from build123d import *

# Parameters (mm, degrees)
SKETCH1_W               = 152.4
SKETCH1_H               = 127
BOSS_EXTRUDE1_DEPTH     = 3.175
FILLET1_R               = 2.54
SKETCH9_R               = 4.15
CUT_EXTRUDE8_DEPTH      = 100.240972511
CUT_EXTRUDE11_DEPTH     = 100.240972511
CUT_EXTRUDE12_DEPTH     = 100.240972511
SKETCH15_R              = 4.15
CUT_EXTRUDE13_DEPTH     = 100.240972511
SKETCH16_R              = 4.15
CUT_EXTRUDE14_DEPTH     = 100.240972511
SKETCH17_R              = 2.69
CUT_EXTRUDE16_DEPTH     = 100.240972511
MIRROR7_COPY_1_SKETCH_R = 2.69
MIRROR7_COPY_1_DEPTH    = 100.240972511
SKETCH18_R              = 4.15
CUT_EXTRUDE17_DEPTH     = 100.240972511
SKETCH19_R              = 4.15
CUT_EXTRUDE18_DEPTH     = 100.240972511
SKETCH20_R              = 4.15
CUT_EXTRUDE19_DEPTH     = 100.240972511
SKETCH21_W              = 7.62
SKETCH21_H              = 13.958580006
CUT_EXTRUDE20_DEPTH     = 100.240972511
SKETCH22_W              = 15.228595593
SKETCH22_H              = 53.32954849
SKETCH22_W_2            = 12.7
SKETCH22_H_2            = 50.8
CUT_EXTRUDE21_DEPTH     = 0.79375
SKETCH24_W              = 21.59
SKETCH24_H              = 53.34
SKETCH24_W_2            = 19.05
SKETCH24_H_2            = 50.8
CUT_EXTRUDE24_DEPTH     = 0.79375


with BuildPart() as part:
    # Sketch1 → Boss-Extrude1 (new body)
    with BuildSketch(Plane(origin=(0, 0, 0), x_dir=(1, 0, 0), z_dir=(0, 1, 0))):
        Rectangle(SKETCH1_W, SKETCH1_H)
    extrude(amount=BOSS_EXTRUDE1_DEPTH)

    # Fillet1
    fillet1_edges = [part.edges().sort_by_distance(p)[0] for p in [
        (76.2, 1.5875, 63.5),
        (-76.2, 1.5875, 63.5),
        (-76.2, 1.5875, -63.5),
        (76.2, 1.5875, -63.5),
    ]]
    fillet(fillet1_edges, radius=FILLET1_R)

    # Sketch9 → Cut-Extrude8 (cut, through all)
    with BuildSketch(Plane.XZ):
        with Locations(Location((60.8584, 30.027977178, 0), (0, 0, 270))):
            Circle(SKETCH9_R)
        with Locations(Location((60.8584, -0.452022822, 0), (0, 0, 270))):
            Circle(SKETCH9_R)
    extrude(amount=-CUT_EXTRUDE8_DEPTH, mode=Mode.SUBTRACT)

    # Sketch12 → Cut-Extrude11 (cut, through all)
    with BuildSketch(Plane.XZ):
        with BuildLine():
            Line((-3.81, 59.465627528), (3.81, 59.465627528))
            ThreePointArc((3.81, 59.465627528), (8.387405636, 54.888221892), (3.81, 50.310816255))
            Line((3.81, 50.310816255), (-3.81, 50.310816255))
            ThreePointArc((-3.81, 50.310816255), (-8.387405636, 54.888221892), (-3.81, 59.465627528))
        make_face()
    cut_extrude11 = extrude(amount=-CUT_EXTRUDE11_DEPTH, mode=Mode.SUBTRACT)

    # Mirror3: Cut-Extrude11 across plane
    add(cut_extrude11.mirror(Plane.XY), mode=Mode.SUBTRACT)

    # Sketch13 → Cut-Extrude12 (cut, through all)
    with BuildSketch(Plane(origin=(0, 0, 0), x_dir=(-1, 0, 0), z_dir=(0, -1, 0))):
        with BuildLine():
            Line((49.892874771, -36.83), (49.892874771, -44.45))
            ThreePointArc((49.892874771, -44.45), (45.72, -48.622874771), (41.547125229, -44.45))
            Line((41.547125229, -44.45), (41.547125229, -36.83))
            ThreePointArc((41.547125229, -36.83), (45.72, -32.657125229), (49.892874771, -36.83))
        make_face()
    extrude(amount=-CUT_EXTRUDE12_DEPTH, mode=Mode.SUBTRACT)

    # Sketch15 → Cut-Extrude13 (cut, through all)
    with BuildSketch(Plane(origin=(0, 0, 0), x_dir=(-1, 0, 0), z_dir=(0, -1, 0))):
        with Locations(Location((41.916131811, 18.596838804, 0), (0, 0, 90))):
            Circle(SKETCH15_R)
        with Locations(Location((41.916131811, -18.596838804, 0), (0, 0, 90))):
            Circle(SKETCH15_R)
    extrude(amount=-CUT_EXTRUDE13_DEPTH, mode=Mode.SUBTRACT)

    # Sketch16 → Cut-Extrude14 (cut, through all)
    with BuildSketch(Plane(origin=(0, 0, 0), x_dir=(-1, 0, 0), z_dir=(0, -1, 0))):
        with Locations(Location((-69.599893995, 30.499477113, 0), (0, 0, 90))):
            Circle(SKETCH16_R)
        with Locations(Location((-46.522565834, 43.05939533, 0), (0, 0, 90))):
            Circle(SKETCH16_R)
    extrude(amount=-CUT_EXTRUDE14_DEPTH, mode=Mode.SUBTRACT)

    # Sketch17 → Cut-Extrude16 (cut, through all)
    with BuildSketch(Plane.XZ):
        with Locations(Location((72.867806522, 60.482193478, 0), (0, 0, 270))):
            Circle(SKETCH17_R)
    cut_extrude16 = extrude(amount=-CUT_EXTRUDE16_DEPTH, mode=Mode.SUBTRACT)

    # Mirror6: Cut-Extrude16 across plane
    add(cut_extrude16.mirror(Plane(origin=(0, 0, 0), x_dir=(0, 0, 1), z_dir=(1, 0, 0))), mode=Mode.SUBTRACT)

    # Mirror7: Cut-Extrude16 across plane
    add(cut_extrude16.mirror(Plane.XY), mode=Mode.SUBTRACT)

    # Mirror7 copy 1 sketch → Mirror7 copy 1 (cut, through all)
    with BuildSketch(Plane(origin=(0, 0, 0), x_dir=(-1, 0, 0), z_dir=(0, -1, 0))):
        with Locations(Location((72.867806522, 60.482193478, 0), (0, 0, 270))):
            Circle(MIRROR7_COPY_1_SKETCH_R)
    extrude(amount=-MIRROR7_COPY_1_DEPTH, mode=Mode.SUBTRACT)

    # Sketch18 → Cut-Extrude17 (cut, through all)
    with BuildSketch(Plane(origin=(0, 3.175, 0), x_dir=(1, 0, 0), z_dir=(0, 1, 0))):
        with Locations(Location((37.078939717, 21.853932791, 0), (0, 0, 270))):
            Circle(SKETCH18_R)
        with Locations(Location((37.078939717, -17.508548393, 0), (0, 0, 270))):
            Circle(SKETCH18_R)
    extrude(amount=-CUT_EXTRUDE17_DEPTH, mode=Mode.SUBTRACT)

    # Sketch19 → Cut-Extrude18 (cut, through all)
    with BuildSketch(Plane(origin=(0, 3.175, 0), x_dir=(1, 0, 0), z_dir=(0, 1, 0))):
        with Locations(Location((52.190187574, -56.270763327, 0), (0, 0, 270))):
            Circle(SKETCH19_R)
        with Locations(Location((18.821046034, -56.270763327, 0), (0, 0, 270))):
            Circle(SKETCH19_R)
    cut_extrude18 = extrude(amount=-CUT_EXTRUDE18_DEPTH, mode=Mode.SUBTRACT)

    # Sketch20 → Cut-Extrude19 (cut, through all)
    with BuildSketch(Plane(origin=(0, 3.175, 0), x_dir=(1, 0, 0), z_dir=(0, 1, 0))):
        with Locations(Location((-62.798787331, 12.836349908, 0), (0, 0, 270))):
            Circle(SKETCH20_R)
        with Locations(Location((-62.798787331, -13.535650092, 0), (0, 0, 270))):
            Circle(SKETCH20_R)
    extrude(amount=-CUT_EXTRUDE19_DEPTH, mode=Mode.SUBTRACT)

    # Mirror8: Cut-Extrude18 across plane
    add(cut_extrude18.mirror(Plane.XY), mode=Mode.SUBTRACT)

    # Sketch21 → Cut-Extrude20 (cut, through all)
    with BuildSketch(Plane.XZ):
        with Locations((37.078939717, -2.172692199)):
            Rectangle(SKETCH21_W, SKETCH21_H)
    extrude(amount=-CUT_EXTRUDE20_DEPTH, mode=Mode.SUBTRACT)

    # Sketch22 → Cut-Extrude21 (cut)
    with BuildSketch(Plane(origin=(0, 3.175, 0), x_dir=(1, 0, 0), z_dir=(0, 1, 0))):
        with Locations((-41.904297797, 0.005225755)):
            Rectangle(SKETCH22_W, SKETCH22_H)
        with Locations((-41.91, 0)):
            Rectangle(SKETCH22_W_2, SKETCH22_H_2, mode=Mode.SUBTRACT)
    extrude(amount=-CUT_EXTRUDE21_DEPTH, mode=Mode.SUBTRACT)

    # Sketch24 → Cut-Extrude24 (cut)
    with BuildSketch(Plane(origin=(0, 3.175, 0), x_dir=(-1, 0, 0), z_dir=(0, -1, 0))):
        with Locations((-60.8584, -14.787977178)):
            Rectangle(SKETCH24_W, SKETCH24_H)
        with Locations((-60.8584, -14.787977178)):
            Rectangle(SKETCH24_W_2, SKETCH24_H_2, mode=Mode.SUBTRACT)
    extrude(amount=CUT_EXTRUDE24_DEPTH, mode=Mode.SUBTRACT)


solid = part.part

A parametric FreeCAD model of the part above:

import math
import FreeCAD as App
import Part
import Sketcher
from FreeCAD import Vector
Q = App.Units.Quantity


def edges_at(feature, points):
    """Names of the edges that pass closest to the given points."""
    edges = feature.Shape.Edges
    near = lambda p: min(range(len(edges)), key=lambda i: edges[i].distToShape(Part.Vertex(*p))[0])
    return sorted({f"Edge{near(p) + 1}" for p in points})

doc = App.newDocument("Part")
body = doc.addObject("PartDesign::Body", "Body")

# Sketch on XZ plane
sketch1 = doc.addObject("Sketcher::SketchObject", "Sketch")
body.addObject(sketch1)
sketch1.AttachmentSupport = (doc.XZ_Plane, [""])
sketch1.MapMode = "FlatFace"
sketch1.addGeometry([
    Part.LineSegment(Vector(-76, -64, 0), Vector(-76, 64, 0)),
    Part.LineSegment(Vector(-76, 64, 0), Vector(76, 64, 0)),
    Part.LineSegment(Vector(76, 64, 0), Vector(76, -64, 0)),
    Part.LineSegment(Vector(76, -64, 0), Vector(-76, -64, 0)),
], False)
sketch1.addConstraint([
    Sketcher.Constraint("Coincident", 0, 2, 1, 1),
    Sketcher.Constraint("Coincident", 1, 2, 2, 1),
    Sketcher.Constraint("Coincident", 2, 2, 3, 1),
    Sketcher.Constraint("Coincident", 3, 2, 0, 1),
    Sketcher.Constraint("Vertical", 0),
    Sketcher.Constraint("Horizontal", 1),
    Sketcher.Constraint("Vertical", 2),
    Sketcher.Constraint("Horizontal", 3),
    Sketcher.Constraint("Symmetric", 0, 2, 2, 2, -1, 1),
    Sketcher.Constraint("DistanceX", 1, 1, 1, 2, Q("6 in")),
    Sketcher.Constraint("DistanceY", 0, 1, 0, 2, Q("5 in")),
])
pad1 = doc.addObject("PartDesign::Pad", "Pad")
body.addObject(pad1)
pad1.Profile = sketch1
pad1.Length = Q("0.125 in")
pad1.Reversed = True
doc.recompute()

fillet = doc.addObject("PartDesign::Fillet", "Fillet")
body.addObject(fillet)
fillet.Base = (pad1, edges_at(pad1, [
    (76.2, 1.587, 63.5),
    (-76.2, 1.587, 63.5),
    (-76.2, 1.587, -63.5),
    (76.2, 1.587, -63.5),
]))
fillet.Radius = Q("0.1 in")

# Sketch on XZ plane
sketch2 = doc.addObject("Sketcher::SketchObject", "Sketch001")
body.addObject(sketch2)
sketch2.AttachmentSupport = (doc.XZ_Plane, [""])
sketch2.MapMode = "FlatFace"
sketch2.addGeometry([
    Part.Circle(Vector(60.9, 30, 0), Vector(0, 0, 1), 4.2),
    Part.Circle(Vector(60.9, -0.5, 0), Vector(0, 0, 1), 4.2),
], False)
sketch2.addConstraint([
    Sketcher.Constraint("Equal", 0, 1),
    Sketcher.Constraint("Vertical", 0, 3, 1, 3),
    Sketcher.Constraint("DistanceY", 1, 3, 0, 3, Q("1.2 in")),
    Sketcher.Constraint("Diameter", 0, 8.3),
    Sketcher.Constraint("DistanceX", -1, 1, 0, 3, Q("2.396 in")),
    Sketcher.Constraint("DistanceY", -1, 1, 0, 3, 30.027977),
])
pocket1 = doc.addObject("PartDesign::Pocket", "Pocket")
body.addObject(pocket1)
pocket1.Profile = sketch2
pocket1.Type = "ThroughAll"

# Sketch on XZ plane
sketch3 = doc.addObject("Sketcher::SketchObject", "Sketch002")
body.addObject(sketch3)
sketch3.AttachmentSupport = (doc.XZ_Plane, [""])
sketch3.MapMode = "FlatFace"
sketch3.addGeometry([
    Part.LineSegment(Vector(3.8, 59.5, 0), Vector(-3.8, 59.5, 0)),
    Part.ArcOfCircle(Part.Circle(Vector(-3.8, 54.9, 0), Vector(0, 0, 1), 4.6), math.radians(90), math.radians(270)),
    Part.LineSegment(Vector(-3.8, 50.3, 0), Vector(3.8, 50.3, 0)),
    Part.ArcOfCircle(Part.Circle(Vector(3.8, 54.9, 0), Vector(0, 0, 1), 4.6), math.radians(-90), math.radians(90)),
], False)
sketch3.addConstraint([
    Sketcher.Constraint("Tangent", 0, 2, 1, 1),
    Sketcher.Constraint("Tangent", 1, 2, 2, 1),
    Sketcher.Constraint("Tangent", 2, 2, 3, 1),
    Sketcher.Constraint("Tangent", 3, 2, 0, 1),
    Sketcher.Constraint("Horizontal", 0),
    Sketcher.Constraint("Horizontal", 2),
    Sketcher.Constraint("DistanceX", 0, 2, 0, 1, Q("0.3 in")),
    Sketcher.Constraint("DistanceX", 1, 3, -1, 1, Q("0.15 in")),
    Sketcher.Constraint("Radius", 1, 4.577406),
    Sketcher.Constraint("DistanceY", -1, 1, 1, 3, 54.888222),
])
pocket2 = doc.addObject("PartDesign::Pocket", "Pocket001")
body.addObject(pocket2)
pocket2.Profile = sketch3
pocket2.Type = "ThroughAll"
doc.recompute()

mirrored = doc.addObject("PartDesign::Mirrored", "Mirrored")
body.addObject(mirrored)
mirrored.Originals = [pocket2]
mirrored.MirrorPlane = (doc.XY_Plane, [""])
body.Tip = mirrored

# Sketch on XZ plane
sketch4 = doc.addObject("Sketcher::SketchObject", "Sketch003")
body.addObject(sketch4)
sketch4.AttachmentSupport = (doc.XZ_Plane, [""])
sketch4.MapMode = "FlatFace"
sketch4.addGeometry([
    Part.LineSegment(Vector(-49.9, 44.5, 0), Vector(-49.9, 36.8, 0)),
    Part.ArcOfCircle(Part.Circle(Vector(-45.7, 36.8, 0), Vector(0, 0, 1), 4.2), math.radians(180), math.radians(360)),
    Part.LineSegment(Vector(-41.5, 36.8, 0), Vector(-41.5, 44.5, 0)),
    Part.ArcOfCircle(Part.Circle(Vector(-45.7, 44.5, 0), Vector(0, 0, 1), 4.2), math.radians(0), math.radians(180)),
], False)
sketch4.addConstraint([
    Sketcher.Constraint("Tangent", 0, 2, 1, 1),
    Sketcher.Constraint("Tangent", 1, 2, 2, 1),
    Sketcher.Constraint("Tangent", 2, 2, 3, 1),
    Sketcher.Constraint("Tangent", 3, 2, 0, 1),
    Sketcher.Constraint("Vertical", 0),
    Sketcher.Constraint("Vertical", 2),
    Sketcher.Constraint("DistanceY", 0, 2, 0, 1, Q("0.3 in")),
    Sketcher.Constraint("DistanceX", 1, 3, -1, 1, Q("1.8 in")),
    Sketcher.Constraint("DistanceY", -1, 1, 1, 3, Q("1.45 in")),
    Sketcher.Constraint("Radius", 1, 4.172875),
])
pocket3 = doc.addObject("PartDesign::Pocket", "Pocket002")
body.addObject(pocket3)
pocket3.Profile = sketch4
pocket3.Type = "ThroughAll"

# Sketch on XZ plane
sketch5 = doc.addObject("Sketcher::SketchObject", "Sketch004")
body.addObject(sketch5)
sketch5.AttachmentSupport = (doc.XZ_Plane, [""])
sketch5.MapMode = "FlatFace"
sketch5.addGeometry([
    Part.Circle(Vector(-41.9, -18.6, 0), Vector(0, 0, 1), 4.2),
    Part.Circle(Vector(-41.9, 18.6, 0), Vector(0, 0, 1), 4.2),
], False)
sketch5.addConstraint([
    Sketcher.Constraint("Equal", 0, 1),
    Sketcher.Constraint("Symmetric", 0, 3, 1, 3, -1),
    Sketcher.Constraint("Diameter", 0, 8.3),
    Sketcher.Constraint("DistanceX", 0, 3, -1, 1, 41.916132),
    Sketcher.Constraint("DistanceY", 0, 3, -1, 1, 18.596839),
])
pocket4 = doc.addObject("PartDesign::Pocket", "Pocket003")
body.addObject(pocket4)
pocket4.Profile = sketch5
pocket4.Type = "ThroughAll"

# Sketch on XZ plane
sketch6 = doc.addObject("Sketcher::SketchObject", "Sketch005")
body.addObject(sketch6)
sketch6.AttachmentSupport = (doc.XZ_Plane, [""])
sketch6.MapMode = "FlatFace"
sketch6.addGeometry([
    Part.Circle(Vector(69.6, -30.5, 0), Vector(0, 0, 1), 4.2),
    Part.Circle(Vector(46.5, -43.1, 0), Vector(0, 0, 1), 4.2),
], False)
sketch6.addConstraint([
    Sketcher.Constraint("Equal", 0, 1),
    Sketcher.Constraint("Diameter", 0, 8.3),
    Sketcher.Constraint("DistanceX", 1, 3, 0, 3, 23.077328),
    Sketcher.Constraint("DistanceY", 1, 3, 0, 3, 12.559918),
    Sketcher.Constraint("DistanceX", -1, 1, 0, 3, 69.599894),
    Sketcher.Constraint("DistanceY", 0, 3, -1, 1, 30.499477),
])
pocket5 = doc.addObject("PartDesign::Pocket", "Pocket004")
body.addObject(pocket5)
pocket5.Profile = sketch6
pocket5.Type = "ThroughAll"

# Sketch on XZ plane
sketch7 = doc.addObject("Sketcher::SketchObject", "Sketch006")
body.addObject(sketch7)
sketch7.AttachmentSupport = (doc.XZ_Plane, [""])
sketch7.MapMode = "FlatFace"
sketch7.addGeometry(Part.Circle(Vector(72.9, 60.5, 0), Vector(0, 0, 1), 2.7), False)
sketch7.addConstraint([
    Sketcher.Constraint("Diameter", 0, 5.38),
    Sketcher.Constraint("DistanceX", -1, 1, 0, 3, 72.867807),
    Sketcher.Constraint("DistanceY", -1, 1, 0, 3, 60.482193),
])
pocket6 = doc.addObject("PartDesign::Pocket", "Pocket005")
body.addObject(pocket6)
pocket6.Profile = sketch7
pocket6.Type = "ThroughAll"
doc.recompute()

mirrored2 = doc.addObject("PartDesign::Mirrored", "Mirrored001")
body.addObject(mirrored2)
mirrored2.Originals = [pocket6]
mirrored2.MirrorPlane = (doc.YZ_Plane, [""])
body.Tip = mirrored2
doc.recompute()

mirrored3 = doc.addObject("PartDesign::Mirrored", "Mirrored002")
body.addObject(mirrored3)
mirrored3.Originals = [pocket6]
mirrored3.MirrorPlane = (doc.XY_Plane, [""])
body.Tip = mirrored3

# Sketch on XZ plane
sketch8 = doc.addObject("Sketcher::SketchObject", "Sketch007")
body.addObject(sketch8)
sketch8.AttachmentSupport = (doc.XZ_Plane, [""])
sketch8.MapMode = "FlatFace"
sketch8.addGeometry(Part.Circle(Vector(-72.9, -60.5, 0), Vector(0, 0, 1), 2.7), False)
sketch8.addConstraint([
    Sketcher.Constraint("Diameter", 0, 5.38),
    Sketcher.Constraint("DistanceX", 0, 3, -1, 1, 72.867807),
    Sketcher.Constraint("DistanceY", 0, 3, -1, 1, 60.482193),
])
pocket7 = doc.addObject("PartDesign::Pocket", "Pocket006")
body.addObject(pocket7)
pocket7.Profile = sketch8
pocket7.Type = "ThroughAll"

# Sketch on XZ plane
sketch9 = doc.addObject("Sketcher::SketchObject", "Sketch008")
body.addObject(sketch9)
sketch9.AttachmentSupport = (doc.XZ_Plane, [""])
sketch9.MapMode = "FlatFace"
sketch9.AttachmentOffset = App.Placement(Vector(0, 0, -0.125 * 25.4), App.Rotation())
sketch9.addGeometry([
    Part.Circle(Vector(37.1, -21.9, 0), Vector(0, 0, 1), 4.2),
    Part.Circle(Vector(37.1, 17.5, 0), Vector(0, 0, 1), 4.2),
], False)
sketch9.addConstraint([
    Sketcher.Constraint("Equal", 0, 1),
    Sketcher.Constraint("Vertical", 0, 3, 1, 3),
    Sketcher.Constraint("Diameter", 0, 8.3),
    Sketcher.Constraint("DistanceX", -1, 1, 0, 3, 37.07894),
    Sketcher.Constraint("DistanceY", -1, 1, 1, 3, 17.508548),
    Sketcher.Constraint("DistanceY", 0, 3, 1, 3, 39.362481),
])
pocket8 = doc.addObject("PartDesign::Pocket", "Pocket007")
body.addObject(pocket8)
pocket8.Profile = sketch9
pocket8.Type = "ThroughAll"
pocket8.Reversed = True

# Sketch on XZ plane
sketch10 = doc.addObject("Sketcher::SketchObject", "Sketch009")
body.addObject(sketch10)
sketch10.AttachmentSupport = (doc.XZ_Plane, [""])
sketch10.MapMode = "FlatFace"
sketch10.AttachmentOffset = App.Placement(Vector(0, 0, -0.125 * 25.4), App.Rotation())
sketch10.addGeometry([
    Part.Circle(Vector(52.2, 56.3, 0), Vector(0, 0, 1), 4.2),
    Part.Circle(Vector(18.8, 56.3, 0), Vector(0, 0, 1), 4.2),
], False)
sketch10.addConstraint([
    Sketcher.Constraint("Equal", 0, 1),
    Sketcher.Constraint("Horizontal", 0, 3, 1, 3),
    Sketcher.Constraint("Diameter", 0, 8.3),
    Sketcher.Constraint("DistanceX", 1, 3, 0, 3, 33.369142),
    Sketcher.Constraint("DistanceX", -1, 1, 0, 3, 52.190188),
    Sketcher.Constraint("DistanceY", -1, 1, 0, 3, 56.270763),
])
pocket9 = doc.addObject("PartDesign::Pocket", "Pocket008")
body.addObject(pocket9)
pocket9.Profile = sketch10
pocket9.Type = "ThroughAll"
pocket9.Reversed = True

# Sketch on XZ plane
sketch11 = doc.addObject("Sketcher::SketchObject", "Sketch010")
body.addObject(sketch11)
sketch11.AttachmentSupport = (doc.XZ_Plane, [""])
sketch11.MapMode = "FlatFace"
sketch11.AttachmentOffset = App.Placement(Vector(0, 0, -0.125 * 25.4), App.Rotation())
sketch11.addGeometry([
    Part.Circle(Vector(-62.8, -12.8, 0), Vector(0, 0, 1), 4.2),
    Part.Circle(Vector(-62.8, 13.5, 0), Vector(0, 0, 1), 4.2),
], False)
sketch11.addConstraint([
    Sketcher.Constraint("Equal", 0, 1),
    Sketcher.Constraint("Vertical", 0, 3, 1, 3),
    Sketcher.Constraint("Diameter", 0, 8.3),
    Sketcher.Constraint("DistanceY", 0, 3, 1, 3, 26.372),
    Sketcher.Constraint("DistanceY", 0, 3, -1, 1, 12.83635),
    Sketcher.Constraint("DistanceX", 0, 3, -1, 1, 62.798787),
])
pocket10 = doc.addObject("PartDesign::Pocket", "Pocket009")
body.addObject(pocket10)
pocket10.Profile = sketch11
pocket10.Type = "ThroughAll"
pocket10.Reversed = True
doc.recompute()

mirrored4 = doc.addObject("PartDesign::Mirrored", "Mirrored003")
body.addObject(mirrored4)
mirrored4.Originals = [pocket9]
mirrored4.MirrorPlane = (doc.XY_Plane, [""])
body.Tip = mirrored4

# Sketch on XZ plane
sketch12 = doc.addObject("Sketcher::SketchObject", "Sketch011")
body.addObject(sketch12)
sketch12.AttachmentSupport = (doc.XZ_Plane, [""])
sketch12.MapMode = "FlatFace"
sketch12.addGeometry([
    Part.LineSegment(Vector(33, 5, 0), Vector(33, -9, 0)),
    Part.LineSegment(Vector(33, -9, 0), Vector(41, -9, 0)),
    Part.LineSegment(Vector(41, -9, 0), Vector(41, 5, 0)),
    Part.LineSegment(Vector(41, 5, 0), Vector(33, 5, 0)),
], False)
sketch12.addConstraint([
    Sketcher.Constraint("Coincident", 0, 2, 1, 1),
    Sketcher.Constraint("Coincident", 1, 2, 2, 1),
    Sketcher.Constraint("Coincident", 2, 2, 3, 1),
    Sketcher.Constraint("Coincident", 3, 2, 0, 1),
    Sketcher.Constraint("Vertical", 0),
    Sketcher.Constraint("Horizontal", 1),
    Sketcher.Constraint("Vertical", 2),
    Sketcher.Constraint("Horizontal", 3),
    Sketcher.Constraint("DistanceX", 1, 1, 1, 2, Q("0.3 in")),
    Sketcher.Constraint("DistanceY", 0, 2, 0, 1, 13.95858),
    Sketcher.Constraint("DistanceX", -1, 1, 0, 2, 33.26894),
    Sketcher.Constraint("DistanceY", 0, 2, -1, 1, 9.151982),
])
pocket11 = doc.addObject("PartDesign::Pocket", "Pocket010")
body.addObject(pocket11)
pocket11.Profile = sketch12
pocket11.Type = "ThroughAll"

# Sketch on XZ plane
sketch13 = doc.addObject("Sketcher::SketchObject", "Sketch012")
body.addObject(sketch13)
sketch13.AttachmentSupport = (doc.XZ_Plane, [""])
sketch13.MapMode = "FlatFace"
sketch13.AttachmentOffset = App.Placement(Vector(0, 0, -0.125 * 25.4), App.Rotation())
sketch13.addGeometry([
    Part.LineSegment(Vector(-50, -27, 0), Vector(-50, 27, 0)),  # 0
    Part.LineSegment(Vector(-50, 27, 0), Vector(-34, 27, 0)),  # 1
    Part.LineSegment(Vector(-34, 27, 0), Vector(-34, -27, 0)),  # 2
    Part.LineSegment(Vector(-34, -27, 0), Vector(-50, -27, 0)),  # 3
    Part.LineSegment(Vector(-36, 25, 0), Vector(-48, 25, 0)),  # 4
    Part.LineSegment(Vector(-48, 25, 0), Vector(-48, -25, 0)),  # 5
    Part.LineSegment(Vector(-48, -25, 0), Vector(-36, -25, 0)),  # 6
    Part.LineSegment(Vector(-36, -25, 0), Vector(-36, 25, 0)),  # 7
], False)
sketch13.addConstraint([
    Sketcher.Constraint("Coincident", 0, 2, 1, 1),
    Sketcher.Constraint("Coincident", 1, 2, 2, 1),
    Sketcher.Constraint("Coincident", 2, 2, 3, 1),
    Sketcher.Constraint("Coincident", 3, 2, 0, 1),
    Sketcher.Constraint("Coincident", 4, 2, 5, 1),
    Sketcher.Constraint("Coincident", 5, 2, 6, 1),
    Sketcher.Constraint("Coincident", 6, 2, 7, 1),
    Sketcher.Constraint("Coincident", 7, 2, 4, 1),
    Sketcher.Constraint("Vertical", 0),
    Sketcher.Constraint("Horizontal", 1),
    Sketcher.Constraint("Vertical", 2),
    Sketcher.Constraint("Horizontal", 3),
    Sketcher.Constraint("Horizontal", 4),
    Sketcher.Constraint("Vertical", 5),
    Sketcher.Constraint("Horizontal", 6),
    Sketcher.Constraint("Vertical", 7),
    Sketcher.Constraint("DistanceY", 5, 2, 5, 1, Q("2 in")),
    Sketcher.Constraint("DistanceX", 4, 2, 4, 1, Q("0.5 in")),
    Sketcher.Constraint("DistanceY", -1, 1, 4, 2, Q("1 in")),
    Sketcher.Constraint("DistanceX", 4, 2, -1, 1, Q("1.9 in")),
    Sketcher.Constraint("DistanceX", 1, 2, -1, 1, Q("1.35 in")),
    Sketcher.Constraint("DistanceY", 2, 2, -1, 1, Q("1.05 in")),
    Sketcher.Constraint("DistanceY", 0, 1, 0, 2, 53.329548),
    Sketcher.Constraint("DistanceX", 1, 1, 1, 2, 15.228596),
])
pocket12 = doc.addObject("PartDesign::Pocket", "Pocket011")
body.addObject(pocket12)
pocket12.Profile = sketch13
pocket12.Length = Q("0.03125 in")
pocket12.Reversed = True

# Sketch on XZ plane
sketch14 = doc.addObject("Sketcher::SketchObject", "Sketch013")
body.addObject(sketch14)
sketch14.AttachmentSupport = (doc.XZ_Plane, [""])
sketch14.MapMode = "FlatFace"
sketch14.AttachmentOffset = App.Placement(Vector(0, 0, -0.125 * 25.4), App.Rotation())
sketch14.addGeometry([
    Part.LineSegment(Vector(72, -12, 0), Vector(72, 41, 0)),  # 0
    Part.LineSegment(Vector(72, 41, 0), Vector(50, 41, 0)),  # 1
    Part.LineSegment(Vector(50, 41, 0), Vector(50, -12, 0)),  # 2
    Part.LineSegment(Vector(50, -12, 0), Vector(72, -12, 0)),  # 3
    Part.LineSegment(Vector(51, 40, 0), Vector(70, 40, 0)),  # 4
    Part.LineSegment(Vector(70, 40, 0), Vector(70, -11, 0)),  # 5
    Part.LineSegment(Vector(70, -11, 0), Vector(51, -11, 0)),  # 6
    Part.LineSegment(Vector(51, -11, 0), Vector(51, 40, 0)),  # 7
], False)
sketch14.addConstraint([
    Sketcher.Constraint("Coincident", 0, 2, 1, 1),
    Sketcher.Constraint("Coincident", 1, 2, 2, 1),
    Sketcher.Constraint("Coincident", 2, 2, 3, 1),
    Sketcher.Constraint("Coincident", 3, 2, 0, 1),
    Sketcher.Constraint("Coincident", 4, 2, 5, 1),
    Sketcher.Constraint("Coincident", 5, 2, 6, 1),
    Sketcher.Constraint("Coincident", 6, 2, 7, 1),
    Sketcher.Constraint("Coincident", 7, 2, 4, 1),
    Sketcher.Constraint("Vertical", 0),
    Sketcher.Constraint("Horizontal", 1),
    Sketcher.Constraint("Vertical", 2),
    Sketcher.Constraint("Horizontal", 3),
    Sketcher.Constraint("Horizontal", 4),
    Sketcher.Constraint("Vertical", 5),
    Sketcher.Constraint("Horizontal", 6),
    Sketcher.Constraint("Vertical", 7),
    Sketcher.Constraint("DistanceY", 5, 2, 5, 1, Q("2 in")),
    Sketcher.Constraint("DistanceY", 0, 1, 0, 2, Q("2.1 in")),
    Sketcher.Constraint("DistanceX", 1, 2, 1, 1, Q("0.85 in")),
    Sketcher.Constraint("DistanceX", 4, 1, 4, 2, Q("0.75 in")),
    Sketcher.Constraint("DistanceX", 1, 2, 4, 2, Q("0.8 in")),
    Sketcher.Constraint("DistanceY", 4, 2, 0, 2, Q("0.05 in")),
    Sketcher.Constraint("DistanceX", -1, 1, 0, 2, Q("2.821 in")),
    Sketcher.Constraint("DistanceY", -1, 1, 0, 2, 41.457977),
])
pocket13 = doc.addObject("PartDesign::Pocket", "Pocket012")
body.addObject(pocket13)
pocket13.Profile = sketch14
pocket13.Length = Q("0.03125 in")
pocket13.Reversed = True

doc.recompute()
